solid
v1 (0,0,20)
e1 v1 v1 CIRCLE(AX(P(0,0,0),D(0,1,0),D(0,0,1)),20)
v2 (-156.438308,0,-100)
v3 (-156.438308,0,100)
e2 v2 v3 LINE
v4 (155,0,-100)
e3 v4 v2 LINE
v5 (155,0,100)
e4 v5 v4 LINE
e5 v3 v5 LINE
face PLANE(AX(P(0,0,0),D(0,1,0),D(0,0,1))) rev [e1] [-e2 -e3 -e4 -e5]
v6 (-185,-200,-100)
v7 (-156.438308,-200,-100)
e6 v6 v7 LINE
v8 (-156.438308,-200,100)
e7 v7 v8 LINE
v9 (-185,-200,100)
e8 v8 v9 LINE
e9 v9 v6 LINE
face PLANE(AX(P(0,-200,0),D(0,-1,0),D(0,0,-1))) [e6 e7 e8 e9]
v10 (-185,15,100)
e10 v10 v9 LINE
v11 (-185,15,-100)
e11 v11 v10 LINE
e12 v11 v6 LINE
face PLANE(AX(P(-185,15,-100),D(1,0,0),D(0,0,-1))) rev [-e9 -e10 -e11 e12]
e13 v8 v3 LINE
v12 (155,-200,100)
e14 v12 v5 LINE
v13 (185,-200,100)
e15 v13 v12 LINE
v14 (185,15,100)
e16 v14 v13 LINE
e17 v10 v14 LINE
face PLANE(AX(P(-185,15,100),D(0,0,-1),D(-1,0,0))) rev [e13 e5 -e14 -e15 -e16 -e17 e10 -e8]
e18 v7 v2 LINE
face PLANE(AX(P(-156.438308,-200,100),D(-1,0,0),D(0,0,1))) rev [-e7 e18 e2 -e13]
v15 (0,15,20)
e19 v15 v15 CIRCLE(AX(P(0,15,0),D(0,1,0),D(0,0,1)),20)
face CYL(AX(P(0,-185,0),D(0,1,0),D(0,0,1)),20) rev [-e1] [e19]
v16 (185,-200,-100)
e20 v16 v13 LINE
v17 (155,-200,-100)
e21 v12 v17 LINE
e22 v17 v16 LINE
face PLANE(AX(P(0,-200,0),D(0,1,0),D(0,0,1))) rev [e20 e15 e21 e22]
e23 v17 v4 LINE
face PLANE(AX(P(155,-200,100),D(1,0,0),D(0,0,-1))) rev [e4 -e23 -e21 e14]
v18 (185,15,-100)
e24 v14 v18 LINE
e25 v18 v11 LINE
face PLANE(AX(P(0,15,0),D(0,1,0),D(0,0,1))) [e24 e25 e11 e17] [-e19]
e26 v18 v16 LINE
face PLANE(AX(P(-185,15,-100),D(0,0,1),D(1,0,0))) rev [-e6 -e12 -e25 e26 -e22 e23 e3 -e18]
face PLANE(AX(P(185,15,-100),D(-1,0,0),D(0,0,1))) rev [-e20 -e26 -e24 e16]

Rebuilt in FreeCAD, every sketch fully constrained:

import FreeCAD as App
import Part
import Sketcher

V = App.Vector


def add_polygon(sketch, points):
    """Adds a closed chain of lines whose ends are joined by coincident constraints."""
    first, n = sketch.GeometryCount, len(points)
    for a, b in zip(points, points[1:] + points[:1]):
        sketch.addGeometry(Part.LineSegment(App.Vector(*a, 0), App.Vector(*b, 0)), False)
    for i in range(n):
        sketch.addConstraint(Sketcher.Constraint("Coincident", first + i, 2, first + (i + 1) % n, 1))

doc = App.newDocument("Part")
body = doc.addObject("PartDesign::Body", "Body")

sketch1 = doc.addObject("Sketcher::SketchObject", "Sketch")
body.addObject(sketch1)
sketch1.AttachmentSupport = (doc.XZ_Plane, [""])
sketch1.MapMode = "FlatFace"
add_polygon(sketch1, [(-185, -100), (-185, 100), (185, 100), (185, -100)])
sketch1.addConstraint(Sketcher.Constraint("Vertical", 0))
sketch1.addConstraint(Sketcher.Constraint("Horizontal", 1))
sketch1.addConstraint(Sketcher.Constraint("Vertical", 2))
sketch1.addConstraint(Sketcher.Constraint("Horizontal", 3))
sketch1.addConstraint(Sketcher.Constraint("Symmetric", 0, 2, 2, 2, -1, 1))
sketch1.addConstraint(Sketcher.Constraint("DistanceX", 1, 1, 1, 2, 370.0))
sketch1.addConstraint(Sketcher.Constraint("DistanceY", 0, 1, 0, 2, 200.0))
pad1 = doc.addObject("PartDesign::Pad", "Pad")
body.addObject(pad1)
pad1.Profile = sketch1
pad1.Length = 15
pad1.Reversed = True

sketch2 = doc.addObject("Sketcher::SketchObject", "Sketch001")
body.addObject(sketch2)
sketch2.AttachmentSupport = (doc.XZ_Plane, [""])
sketch2.MapMode = "FlatFace"
add_polygon(sketch2, [(-185, 100), (-185, -100), (-156, -100), (-156, 100)])
add_polygon(sketch2, [(155, 100), (155, -100), (185, -100), (185, 100)])
sketch2.addConstraint(Sketcher.Constraint("Vertical", 0))
sketch2.addConstraint(Sketcher.Constraint("Horizontal", 1))
sketch2.addConstraint(Sketcher.Constraint("Vertical", 2))
sketch2.addConstraint(Sketcher.Constraint("Horizontal", 3))
sketch2.addConstraint(Sketcher.Constraint("Vertical", 4))
sketch2.addConstraint(Sketcher.Constraint("Horizontal", 5))
sketch2.addConstraint(Sketcher.Constraint("Vertical", 6))
sketch2.addConstraint(Sketcher.Constraint("Horizontal", 7))
sketch2.addConstraint(Sketcher.Constraint("Symmetric", 3, 2, 5, 2, -1, 1))
sketch2.addConstraint(Sketcher.Constraint("Horizontal", 1, 2, 4, 2))
sketch2.addConstraint(Sketcher.Constraint("Horizontal", 3, 2, 6, 2))
sketch2.addConstraint(Sketcher.Constraint("DistanceX", 5, 1, 5, 2, 30.0))
sketch2.addConstraint(Sketcher.Constraint("DistanceY", 0, 2, 0, 1, 200.0))
sketch2.addConstraint(Sketcher.Constraint("DistanceX", 0, 2, -1, 1, 185.0))
sketch2.addConstraint(Sketcher.Constraint("DistanceX", 1, 1, 1, 2, 28.561692))
pad2 = doc.addObject("PartDesign::Pad", "Pad001")
body.addObject(pad2)
pad2.Profile = sketch2
pad2.Length = 200

sketch3 = doc.addObject("Sketcher::SketchObject", "Sketch002")
body.addObject(sketch3)
sketch3.AttachmentSupport = (doc.XZ_Plane, [""])
sketch3.MapMode = "FlatFace"
sketch3.AttachmentOffset = App.Placement(V(0, 0, -15), App.Rotation())
sketch3.addGeometry(Part.Circle(V(0, 0, 0), V(0, 0, 1), 20), False)
sketch3.addConstraint(Sketcher.Constraint("Coincident", 0, 3, -1, 1))
sketch3.addConstraint(Sketcher.Constraint("Diameter", 0, 40.0))
pocket1 = doc.addObject("PartDesign::Pocket", "Pocket")
body.addObject(pocket1)
pocket1.Profile = sketch3
pocket1.Length = 200
pocket1.Reversed = True

doc.recompute()
